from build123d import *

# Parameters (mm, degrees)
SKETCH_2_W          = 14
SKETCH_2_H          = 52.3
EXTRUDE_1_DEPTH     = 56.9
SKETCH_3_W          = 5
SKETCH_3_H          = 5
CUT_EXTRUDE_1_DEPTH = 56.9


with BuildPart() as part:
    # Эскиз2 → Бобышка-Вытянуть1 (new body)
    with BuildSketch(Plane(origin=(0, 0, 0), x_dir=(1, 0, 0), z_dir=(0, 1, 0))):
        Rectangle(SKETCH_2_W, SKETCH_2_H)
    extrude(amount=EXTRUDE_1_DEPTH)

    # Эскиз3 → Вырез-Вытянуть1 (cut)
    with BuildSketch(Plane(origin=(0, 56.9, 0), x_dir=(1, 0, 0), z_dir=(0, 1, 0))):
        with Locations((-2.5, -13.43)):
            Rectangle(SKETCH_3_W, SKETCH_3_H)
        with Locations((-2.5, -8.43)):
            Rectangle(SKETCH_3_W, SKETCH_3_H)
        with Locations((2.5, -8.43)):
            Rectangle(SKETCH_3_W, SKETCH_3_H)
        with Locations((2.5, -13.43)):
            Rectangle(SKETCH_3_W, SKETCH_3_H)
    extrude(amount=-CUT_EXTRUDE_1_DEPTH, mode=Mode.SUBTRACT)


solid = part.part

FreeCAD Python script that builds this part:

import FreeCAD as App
import Part
import Sketcher

V = App.Vector
Q = App.Units.Quantity

doc = App.newDocument("Part")
params = doc.addObject("Spreadsheet::Sheet", "Params")
for row, (alias, value) in enumerate([
    ("sketch1_width", "14 mm"),
    ("sketch1_height", "52.3 mm"),
    ("pad1_length", "56.9 mm"),
    ("sketch2_width", "10 mm"),
    ("pocket1_length", "56.9 mm"),
], start=1):
    params.set(f"A{row}", alias)
    params.set(f"B{row}", "=" + value)
    params.setAlias(f"B{row}", alias)

body = doc.addObject("PartDesign::Body", "Body")

# Sketch on XZ plane
sketch1 = doc.addObject("Sketcher::SketchObject", "Sketch")
body.addObject(sketch1)
sketch1.AttachmentSupport = (doc.XZ_Plane, [""])
sketch1.MapMode = "FlatFace"
sketch1.addGeometry([
    Part.LineSegment(V(-7, -26, 0), V(-7, 26, 0)),
    Part.LineSegment(V(-7, 26, 0), V(7, 26, 0)),
    Part.LineSegment(V(7, 26, 0), V(7, -26, 0)),
    Part.LineSegment(V(7, -26, 0), V(-7, -26, 0)),
], False)
sketch1.addConstraint([
    Sketcher.Constraint("Coincident", 0, 2, 1, 1),
    Sketcher.Constraint("Coincident", 1, 2, 2, 1),
    Sketcher.Constraint("Coincident", 2, 2, 3, 1),
    Sketcher.Constraint("Coincident", 3, 2, 0, 1),
    Sketcher.Constraint("Vertical", 0),
    Sketcher.Constraint("Horizontal", 1),
    Sketcher.Constraint("Vertical", 2),
    Sketcher.Constraint("Horizontal", 3),
    Sketcher.Constraint("Symmetric", 0, 2, 2, 2, -1, 1),
    Sketcher.Constraint("DistanceX", 1, 1, 1, 2, Q("14 mm")),
    Sketcher.Constraint("DistanceY", 0, 1, 0, 2, Q("52.3 mm")),
])
sketch1.setExpression("Constraints[9]", "Params.sketch1_width")
sketch1.setExpression("Constraints[10]", "Params.sketch1_height")
pad1 = doc.addObject("PartDesign::Pad", "Pad")
body.addObject(pad1)
pad1.Profile = sketch1
pad1.setExpression("Length", "Params.pad1_length")
pad1.Reversed = True

# Sketch on XZ plane
sketch2 = doc.addObject("Sketcher::SketchObject", "Sketch001")
body.addObject(sketch2)
sketch2.AttachmentSupport = (doc.XZ_Plane, [""])
sketch2.MapMode = "FlatFace"
sketch2.AttachmentOffset = App.Placement(V(0, 0, -56.9), App.Rotation())
sketch2.addGeometry([
    Part.LineSegment(V(-5, 16, 0), V(5, 16, 0)),
    Part.LineSegment(V(5, 16, 0), V(5, 6, 0)),
    Part.LineSegment(V(5, 6, 0), V(-5, 6, 0)),
    Part.LineSegment(V(-5, 6, 0), V(-5, 16, 0)),
], False)
sketch2.addConstraint([
    Sketcher.Constraint("Coincident", 0, 2, 1, 1),
    Sketcher.Constraint("Coincident", 1, 2, 2, 1),
    Sketcher.Constraint("Coincident", 2, 2, 3, 1),
    Sketcher.Constraint("Coincident", 3, 2, 0, 1),
    Sketcher.Constraint("Horizontal", 0),
    Sketcher.Constraint("Vertical", 1),
    Sketcher.Constraint("Horizontal", 2),
    Sketcher.Constraint("Vertical", 3),
    Sketcher.Constraint("Equal", 2, 1),
    Sketcher.Constraint("DistanceX", 0, 1, 0, 2, Q("10 mm")),
    Sketcher.Constraint("DistanceX", -1, 1, 0, 2, Q("5 mm")),
    Sketcher.Constraint("DistanceY", -1, 1, 0, 2, Q("15.93 mm")),
])
sketch2.setExpression("Constraints[9]", "Params.sketch2_width")
pocket1 = doc.addObject("PartDesign::Pocket", "Pocket")
body.addObject(pocket1)
pocket1.Profile = sketch2
pocket1.setExpression("Length", "Params.pocket1_length")
pocket1.Reversed = True

doc.recompute()
